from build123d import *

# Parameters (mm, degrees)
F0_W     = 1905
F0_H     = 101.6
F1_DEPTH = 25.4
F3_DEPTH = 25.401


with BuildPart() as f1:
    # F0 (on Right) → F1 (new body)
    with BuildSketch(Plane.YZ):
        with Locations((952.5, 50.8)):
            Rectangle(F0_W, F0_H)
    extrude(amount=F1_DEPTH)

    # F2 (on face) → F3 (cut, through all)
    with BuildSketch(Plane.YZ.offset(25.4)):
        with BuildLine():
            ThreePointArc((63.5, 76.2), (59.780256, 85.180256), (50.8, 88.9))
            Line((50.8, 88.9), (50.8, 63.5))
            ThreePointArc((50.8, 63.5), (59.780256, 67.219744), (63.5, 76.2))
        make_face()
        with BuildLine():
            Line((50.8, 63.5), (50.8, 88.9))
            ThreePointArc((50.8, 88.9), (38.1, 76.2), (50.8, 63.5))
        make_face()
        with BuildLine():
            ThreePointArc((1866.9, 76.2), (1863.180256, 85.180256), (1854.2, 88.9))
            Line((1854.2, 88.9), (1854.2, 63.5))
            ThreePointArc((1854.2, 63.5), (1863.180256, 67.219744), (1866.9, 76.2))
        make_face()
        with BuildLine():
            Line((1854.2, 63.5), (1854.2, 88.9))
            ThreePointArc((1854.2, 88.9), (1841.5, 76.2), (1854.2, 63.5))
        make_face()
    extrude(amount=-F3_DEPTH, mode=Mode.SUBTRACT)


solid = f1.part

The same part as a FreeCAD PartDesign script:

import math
import FreeCAD as App
import Part
import Sketcher
from FreeCAD import Vector
Q = App.Units.Quantity


def add_polygon(sketch, points):
    """Adds a closed chain of lines whose ends are joined by coincident constraints."""
    first, n = sketch.GeometryCount, len(points)
    for a, b in zip(points, points[1:] + points[:1]):
        sketch.addGeometry(Part.LineSegment(App.Vector(*a, 0), App.Vector(*b, 0)), False)
    for i in range(n):
        sketch.addConstraint(Sketcher.Constraint("Coincident", first + i, 2, first + (i + 1) % n, 1))

doc = App.newDocument("Part")
body = doc.addObject("PartDesign::Body", "Body")

# Sketch on YZ plane
sketch1 = doc.addObject("Sketcher::SketchObject", "Sketch")
body.addObject(sketch1)
sketch1.AttachmentSupport = (doc.YZ_Plane, [""])
sketch1.MapMode = "FlatFace"
add_polygon(sketch1, [(0, 101.6), (0, 0), (1905, 0), (1905, 101.6)])  # lines 0-3
sketch1.addConstraint([
    Sketcher.Constraint("Vertical", 0),
    Sketcher.Constraint("Horizontal", 1),
    Sketcher.Constraint("Vertical", 2),
    Sketcher.Constraint("Horizontal", 3),
    Sketcher.Constraint("Coincident", 0, 2, -1, 1),
    Sketcher.Constraint("DistanceX", 1, 1, 1, 2, Q("75 in")),
    Sketcher.Constraint("DistanceY", 0, 2, 0, 1, Q("4 in")),
])
pad1 = doc.addObject("PartDesign::Pad", "Pad")
body.addObject(pad1)
pad1.Profile = sketch1
pad1.Length = Q("1 in")

# Sketch on YZ plane
sketch2 = doc.addObject("Sketcher::SketchObject", "Sketch001")
body.addObject(sketch2)
sketch2.AttachmentSupport = (doc.YZ_Plane, [""])
sketch2.MapMode = "FlatFace"
sketch2.AttachmentOffset = App.Placement(Vector(0, 0, 1 * 25.4), App.Rotation())
sketch2.addGeometry([
    Part.ArcOfCircle(Part.Circle(Vector(50.8, 76.2, 0), Vector(0, 0, 1), 12.7), math.radians(0.000002), math.radians(89.999998)),  # 0
    Part.ArcOfCircle(Part.Circle(Vector(50.8, 76.2, 0), Vector(0, 0, 1), 12.7), math.radians(90), math.radians(270)),  # 1
    Part.ArcOfCircle(Part.Circle(Vector(50.8, 76.2, 0), Vector(0, 0, 1), 12.7), math.radians(-89.999998), math.radians(-0.000002)),  # 2
    Part.ArcOfCircle(Part.Circle(Vector(1854.2, 76.2, 0), Vector(0, 0, 1), 12.7), math.radians(0.000002), math.radians(89.999998)),  # 3
    Part.ArcOfCircle(Part.Circle(Vector(1854.2, 76.2, 0), Vector(0, 0, 1), 12.7), math.radians(90), math.radians(270)),  # 4
    Part.ArcOfCircle(Part.Circle(Vector(1854.2, 76.2, 0), Vector(0, 0, 1), 12.7), math.radians(-89.999998), math.radians(-0.000002)),  # 5
], False)
sketch2.addConstraint([
    Sketcher.Constraint("Tangent", 0, 2, 1, 1),
    Sketcher.Constraint("Tangent", 1, 2, 2, 1),
    Sketcher.Constraint("Tangent", 2, 2, 0, 1),
    Sketcher.Constraint("Tangent", 3, 2, 4, 1),
    Sketcher.Constraint("Tangent", 4, 2, 5, 1),
    Sketcher.Constraint("Tangent", 5, 2, 3, 1),
    Sketcher.Constraint("Equal", 2, 3),
    Sketcher.Constraint("Horizontal", 2, 3, 3, 3),
    Sketcher.Constraint("Horizontal", 5, 3, 2, 2),
    Sketcher.Constraint("Horizontal", 2, 2, 5, 2),
    Sketcher.Constraint("Vertical", 2, 3, 0, 2),
    Sketcher.Constraint("Vertical", 0, 2, 1, 2),
    Sketcher.Constraint("Vertical", 5, 3, 3, 2),
    Sketcher.Constraint("Vertical", 3, 2, 4, 2),
    Sketcher.Constraint("Radius", 0, Q("0.5 in")),
    Sketcher.Constraint("DistanceX", -1, 1, 0, 3, Q("2 in")),
    Sketcher.Constraint("DistanceY", -1, 1, 0, 3, Q("3 in")),
    Sketcher.Constraint("DistanceX", -1, 1, 3, 3, Q("73 in")),
])
pocket1 = doc.addObject("PartDesign::Pocket", "Pocket")
body.addObject(pocket1)
pocket1.Profile = sketch2
pocket1.Type = "ThroughAll"

doc.recompute()
